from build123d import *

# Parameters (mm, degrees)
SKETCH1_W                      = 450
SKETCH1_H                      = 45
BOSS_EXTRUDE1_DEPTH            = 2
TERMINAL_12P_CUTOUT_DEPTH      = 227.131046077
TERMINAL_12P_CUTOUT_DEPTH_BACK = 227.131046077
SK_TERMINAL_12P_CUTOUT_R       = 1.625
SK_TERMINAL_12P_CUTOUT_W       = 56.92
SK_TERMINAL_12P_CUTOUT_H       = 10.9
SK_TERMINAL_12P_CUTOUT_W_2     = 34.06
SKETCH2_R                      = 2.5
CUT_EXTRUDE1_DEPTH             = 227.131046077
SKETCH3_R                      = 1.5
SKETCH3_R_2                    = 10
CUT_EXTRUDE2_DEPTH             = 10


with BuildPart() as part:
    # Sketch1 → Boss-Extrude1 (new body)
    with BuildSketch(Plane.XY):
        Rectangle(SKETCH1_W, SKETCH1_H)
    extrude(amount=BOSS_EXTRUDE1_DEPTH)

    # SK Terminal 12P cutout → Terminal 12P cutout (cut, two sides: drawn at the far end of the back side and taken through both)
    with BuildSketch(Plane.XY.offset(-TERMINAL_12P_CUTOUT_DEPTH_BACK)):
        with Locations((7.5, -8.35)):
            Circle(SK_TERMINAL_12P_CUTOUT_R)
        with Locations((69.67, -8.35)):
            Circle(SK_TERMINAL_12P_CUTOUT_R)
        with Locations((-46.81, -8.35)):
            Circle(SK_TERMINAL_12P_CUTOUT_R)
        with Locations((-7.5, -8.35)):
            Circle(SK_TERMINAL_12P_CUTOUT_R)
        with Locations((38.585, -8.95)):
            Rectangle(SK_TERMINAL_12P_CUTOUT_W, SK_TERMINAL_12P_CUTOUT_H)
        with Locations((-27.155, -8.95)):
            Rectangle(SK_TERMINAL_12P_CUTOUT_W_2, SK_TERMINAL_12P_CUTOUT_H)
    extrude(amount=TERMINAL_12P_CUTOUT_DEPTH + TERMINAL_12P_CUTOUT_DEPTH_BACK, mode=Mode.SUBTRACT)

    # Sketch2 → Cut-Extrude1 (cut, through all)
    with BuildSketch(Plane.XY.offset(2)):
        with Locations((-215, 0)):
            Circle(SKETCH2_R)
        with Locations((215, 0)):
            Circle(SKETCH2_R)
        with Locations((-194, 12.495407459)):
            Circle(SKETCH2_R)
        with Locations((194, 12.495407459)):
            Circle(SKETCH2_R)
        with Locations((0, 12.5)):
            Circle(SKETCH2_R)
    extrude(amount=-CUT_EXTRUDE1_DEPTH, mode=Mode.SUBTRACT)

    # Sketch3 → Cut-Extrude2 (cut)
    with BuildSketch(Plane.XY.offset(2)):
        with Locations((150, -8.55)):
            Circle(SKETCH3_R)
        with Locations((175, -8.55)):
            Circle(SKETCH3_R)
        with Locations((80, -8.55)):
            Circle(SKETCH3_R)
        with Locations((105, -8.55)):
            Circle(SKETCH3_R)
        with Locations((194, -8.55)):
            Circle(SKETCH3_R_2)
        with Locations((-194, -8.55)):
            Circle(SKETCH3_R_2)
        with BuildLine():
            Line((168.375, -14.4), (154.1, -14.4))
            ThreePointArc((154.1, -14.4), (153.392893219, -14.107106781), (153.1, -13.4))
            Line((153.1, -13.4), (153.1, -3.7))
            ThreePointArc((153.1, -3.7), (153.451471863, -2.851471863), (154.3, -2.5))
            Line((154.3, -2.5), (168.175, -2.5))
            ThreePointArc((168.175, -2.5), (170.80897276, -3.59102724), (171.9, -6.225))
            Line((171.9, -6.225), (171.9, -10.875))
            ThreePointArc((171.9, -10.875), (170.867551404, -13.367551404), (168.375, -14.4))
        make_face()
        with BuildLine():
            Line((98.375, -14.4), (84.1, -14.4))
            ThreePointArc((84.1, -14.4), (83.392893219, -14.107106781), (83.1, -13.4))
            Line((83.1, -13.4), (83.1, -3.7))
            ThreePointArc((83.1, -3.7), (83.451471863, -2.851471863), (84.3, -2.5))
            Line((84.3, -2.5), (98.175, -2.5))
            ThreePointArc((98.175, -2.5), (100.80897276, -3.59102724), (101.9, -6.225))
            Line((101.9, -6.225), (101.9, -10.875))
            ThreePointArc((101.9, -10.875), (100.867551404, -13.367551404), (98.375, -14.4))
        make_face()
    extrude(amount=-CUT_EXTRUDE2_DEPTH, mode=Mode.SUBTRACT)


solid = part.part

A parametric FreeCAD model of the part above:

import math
import FreeCAD as App
import Part
import Sketcher
Q = App.Units.Quantity


def add_polygon(sketch, points):
    """Adds a closed chain of lines whose ends are joined by coincident constraints."""
    first, n = sketch.GeometryCount, len(points)
    for a, b in zip(points, points[1:] + points[:1]):
        sketch.addGeometry(Part.LineSegment(App.Vector(*a, 0), App.Vector(*b, 0)), False)
    for i in range(n):
        sketch.addConstraint(Sketcher.Constraint("Coincident", first + i, 2, first + (i + 1) % n, 1))

doc = App.newDocument("Part")
body = doc.addObject("PartDesign::Body", "Body")

sketch1 = body.newObject("Sketcher::SketchObject", "Sketch")
sketch1.AttachmentSupport = (doc.getObject("XY_Plane"), [""])
sketch1.MapMode = "FlatFace"
add_polygon(sketch1, [(-225, 22), (-225, -22), (225, -22), (225, 22)])
sketch1.addConstraint(Sketcher.Constraint("Vertical", 0))
sketch1.addConstraint(Sketcher.Constraint("Horizontal", 1))
sketch1.addConstraint(Sketcher.Constraint("Vertical", 2))
sketch1.addConstraint(Sketcher.Constraint("Horizontal", 3))
sketch1.addConstraint(Sketcher.Constraint("Symmetric", 0, 2, 2, 2, -1, 1))
sketch1.addConstraint(Sketcher.Constraint("DistanceX", 1, 1, 1, 2, Q("450 mm")))
sketch1.addConstraint(Sketcher.Constraint("DistanceY", 0, 2, 0, 1, Q("45 mm")))
pad1 = body.newObject("PartDesign::Pad", "Pad")
pad1.Profile = sketch1
pad1.Length = 2

sketch2 = body.newObject("Sketcher::SketchObject", "Sketch001")
sketch2.AttachmentSupport = (doc.getObject("XY_Plane"), [""])
sketch2.MapMode = "FlatFace"
sketch2.addGeometry(Part.Circle(App.Vector(7.5, -8.3, 0), App.Vector(0, 0, 1), 1.6), False)
sketch2.addGeometry(Part.Circle(App.Vector(69.7, -8.3, 0), App.Vector(0, 0, 1), 1.6), False)
sketch2.addGeometry(Part.Circle(App.Vector(-46.8, -8.3, 0), App.Vector(0, 0, 1), 1.6), False)
sketch2.addGeometry(Part.Circle(App.Vector(-7.5, -8.3, 0), App.Vector(0, 0, 1), 1.6), False)
add_polygon(sketch2, [(10.1, -3.5), (10.1, -14.4), (67, -14.4), (67, -3.5)])
add_polygon(sketch2, [(-44.2, -3.5), (-44.2, -14.4), (-10.1, -14.4), (-10.1, -3.5)])
sketch2.addConstraint(Sketcher.Constraint("Vertical", 4))
sketch2.addConstraint(Sketcher.Constraint("Horizontal", 5))
sketch2.addConstraint(Sketcher.Constraint("Vertical", 6))
sketch2.addConstraint(Sketcher.Constraint("Horizontal", 7))
sketch2.addConstraint(Sketcher.Constraint("Vertical", 8))
sketch2.addConstraint(Sketcher.Constraint("Horizontal", 9))
sketch2.addConstraint(Sketcher.Constraint("Vertical", 10))
sketch2.addConstraint(Sketcher.Constraint("Horizontal", 11))
sketch2.addConstraint(Sketcher.Constraint("Equal", 0, 1))
sketch2.addConstraint(Sketcher.Constraint("Equal", 1, 2))
sketch2.addConstraint(Sketcher.Constraint("Equal", 2, 3))
sketch2.addConstraint(Sketcher.Constraint("Symmetric", 0, 3, 3, 3, -2))
sketch2.addConstraint(Sketcher.Constraint("Symmetric", 4, 2, 9, 2, -2))
sketch2.addConstraint(Sketcher.Constraint("Horizontal", 0, 3, 1, 3))
sketch2.addConstraint(Sketcher.Constraint("Horizontal", 1, 3, 2, 3))
sketch2.addConstraint(Sketcher.Constraint("Horizontal", 7, 2, 10, 2))
sketch2.addConstraint(Sketcher.Constraint("Diameter", 0, Q("3.25 mm")))
sketch2.addConstraint(Sketcher.Constraint("DistanceY", 4, 2, 4, 1, Q("10.9 mm")))
sketch2.addConstraint(Sketcher.Constraint("DistanceX", 3, 3, 0, 3, Q("15 mm")))
sketch2.addConstraint(Sketcher.Constraint("DistanceX", 5, 1, 5, 2, Q("56.92 mm")))
sketch2.addConstraint(Sketcher.Constraint("DistanceX", 9, 1, 9, 2, Q("34.06 mm")))
sketch2.addConstraint(Sketcher.Constraint("DistanceY", 4, 2, -1, 1, Q("14.4 mm")))
sketch2.addConstraint(Sketcher.Constraint("DistanceY", 0, 3, -1, 1, Q("8.35 mm")))
sketch2.addConstraint(Sketcher.Constraint("DistanceX", -1, 1, 1, 3, Q("69.67 mm")))
sketch2.addConstraint(Sketcher.Constraint("DistanceX", 2, 3, -1, 1, Q("46.81 mm")))
sketch2.addConstraint(Sketcher.Constraint("DistanceX", 8, 2, 4, 2, Q("54.31 mm")))
pocket1 = body.newObject("PartDesign::Pocket", "Pocket")
pocket1.Profile = sketch2
pocket1.Type = "ThroughAll"
pocket1.Midplane = True

sketch3 = body.newObject("Sketcher::SketchObject", "Sketch002")
sketch3.AttachmentSupport = (doc.getObject("XY_Plane"), [""])
sketch3.MapMode = "FlatFace"
sketch3.AttachmentOffset = App.Placement(App.Vector(0, 0, 2), App.Rotation())
sketch3.addGeometry(Part.Circle(App.Vector(-215, 0, 0), App.Vector(0, 0, 1), 2.5), False)
sketch3.addGeometry(Part.Circle(App.Vector(215, 0, 0), App.Vector(0, 0, 1), 2.5), False)
sketch3.addGeometry(Part.Circle(App.Vector(-194, 12.5, 0), App.Vector(0, 0, 1), 2.5), False)
sketch3.addGeometry(Part.Circle(App.Vector(194, 12.5, 0), App.Vector(0, 0, 1), 2.5), False)
sketch3.addGeometry(Part.Circle(App.Vector(0, 12.5, 0), App.Vector(0, 0, 1), 2.5), False)
sketch3.addConstraint(Sketcher.Constraint("Equal", 0, 1))
sketch3.addConstraint(Sketcher.Constraint("Equal", 1, 2))
sketch3.addConstraint(Sketcher.Constraint("Equal", 2, 3))
sketch3.addConstraint(Sketcher.Constraint("Equal", 3, 4))
sketch3.addConstraint(Sketcher.Constraint("Symmetric", 0, 3, 1, 3, -1, 1))
sketch3.addConstraint(Sketcher.Constraint("Symmetric", 2, 3, 3, 3, -2))
sketch3.addConstraint(Sketcher.Constraint("PointOnObject", 0, 3, -1))
sketch3.addConstraint(Sketcher.Constraint("PointOnObject", 4, 3, -2))
sketch3.addConstraint(Sketcher.Constraint("Diameter", 0, Q("5 mm")))
sketch3.addConstraint(Sketcher.Constraint("DistanceX", 0, 3, -1, 1, Q("215 mm")))
sketch3.addConstraint(Sketcher.Constraint("DistanceX", 2, 3, -1, 1, Q("194 mm")))
sketch3.addConstraint(Sketcher.Constraint("DistanceY", -1, 1, 4, 3, Q("12.5 mm")))
sketch3.addConstraint(Sketcher.Constraint("DistanceY", -1, 1, 2, 3, Q("12.495407 mm")))
pocket2 = body.newObject("PartDesign::Pocket", "Pocket001")
pocket2.Profile = sketch3
pocket2.Type = "ThroughAll"

sketch4 = body.newObject("Sketcher::SketchObject", "Sketch003")
sketch4.AttachmentSupport = (doc.getObject("XY_Plane"), [""])
sketch4.MapMode = "FlatFace"
sketch4.AttachmentOffset = App.Placement(App.Vector(0, 0, 2), App.Rotation())
sketch4.addGeometry(Part.Circle(App.Vector(150, -8.6, 0), App.Vector(0, 0, 1), 1.5), False)
sketch4.addGeometry(Part.Circle(App.Vector(175, -8.6, 0), App.Vector(0, 0, 1), 1.5), False)
sketch4.addGeometry(Part.Circle(App.Vector(80, -8.6, 0), App.Vector(0, 0, 1), 1.5), False)
sketch4.addGeometry(Part.Circle(App.Vector(105, -8.6, 0), App.Vector(0, 0, 1), 1.5), False)
sketch4.addGeometry(Part.Circle(App.Vector(194, -8.6, 0), App.Vector(0, 0, 1), 10), False)
sketch4.addGeometry(Part.Circle(App.Vector(-194, -8.6, 0), App.Vector(0, 0, 1), 10), False)
sketch4.addGeometry(Part.LineSegment(App.Vector(154.1, -14.4, 0), App.Vector(168.4, -14.4, 0)), False)
sketch4.addGeometry(Part.ArcOfCircle(Part.Circle(App.Vector(168.4, -10.9, 0), App.Vector(0, 0, 1), 3.5), math.radians(-90), math.radians(0)), False)
sketch4.addGeometry(Part.LineSegment(App.Vector(171.9, -10.9, 0), App.Vector(171.9, -6.2, 0)), False)
sketch4.addGeometry(Part.ArcOfCircle(Part.Circle(App.Vector(168.2, -6.2, 0), App.Vector(0, 0, 1), 3.7), math.radians(0), math.radians(90)), False)
sketch4.addGeometry(Part.LineSegment(App.Vector(168.2, -2.5, 0), App.Vector(154.3, -2.5, 0)), False)
sketch4.addGeometry(Part.ArcOfCircle(Part.Circle(App.Vector(154.3, -3.7, 0), App.Vector(0, 0, 1), 1.2), math.radians(90), math.radians(180)), False)
sketch4.addGeometry(Part.LineSegment(App.Vector(153.1, -3.7, 0), App.Vector(153.1, -13.4, 0)), False)
sketch4.addGeometry(Part.ArcOfCircle(Part.Circle(App.Vector(154.1, -13.4, 0), App.Vector(0, 0, 1), 1), math.radians(-180), math.radians(-90)), False)
sketch4.addGeometry(Part.LineSegment(App.Vector(84.1, -14.4, 0), App.Vector(98.4, -14.4, 0)), False)
sketch4.addGeometry(Part.ArcOfCircle(Part.Circle(App.Vector(98.4, -10.9, 0), App.Vector(0, 0, 1), 3.5), math.radians(-90), math.radians(0)), False)
sketch4.addGeometry(Part.LineSegment(App.Vector(101.9, -10.9, 0), App.Vector(101.9, -6.2, 0)), False)
sketch4.addGeometry(Part.ArcOfCircle(Part.Circle(App.Vector(98.2, -6.2, 0), App.Vector(0, 0, 1), 3.7), math.radians(0), math.radians(90)), False)
sketch4.addGeometry(Part.LineSegment(App.Vector(98.2, -2.5, 0), App.Vector(84.3, -2.5, 0)), False)
sketch4.addGeometry(Part.ArcOfCircle(Part.Circle(App.Vector(84.3, -3.7, 0), App.Vector(0, 0, 1), 1.2), math.radians(90), math.radians(180)), False)
sketch4.addGeometry(Part.LineSegment(App.Vector(83.1, -3.7, 0), App.Vector(83.1, -13.4, 0)), False)
sketch4.addGeometry(Part.ArcOfCircle(Part.Circle(App.Vector(84.1, -13.4, 0), App.Vector(0, 0, 1), 1), math.radians(-180), math.radians(-90)), False)
sketch4.addConstraint(Sketcher.Constraint("Tangent", 6, 2, 7, 1))
sketch4.addConstraint(Sketcher.Constraint("Tangent", 7, 2, 8, 1))
sketch4.addConstraint(Sketcher.Constraint("Tangent", 8, 2, 9, 1))
sketch4.addConstraint(Sketcher.Constraint("Tangent", 9, 2, 10, 1))
sketch4.addConstraint(Sketcher.Constraint("Tangent", 10, 2, 11, 1))
sketch4.addConstraint(Sketcher.Constraint("Tangent", 11, 2, 12, 1))
sketch4.addConstraint(Sketcher.Constraint("Tangent", 12, 2, 13, 1))
sketch4.addConstraint(Sketcher.Constraint("Tangent", 13, 2, 6, 1))
sketch4.addConstraint(Sketcher.Constraint("Tangent", 14, 2, 15, 1))
sketch4.addConstraint(Sketcher.Constraint("Tangent", 15, 2, 16, 1))
sketch4.addConstraint(Sketcher.Constraint("Tangent", 16, 2, 17, 1))
sketch4.addConstraint(Sketcher.Constraint("Tangent", 17, 2, 18, 1))
sketch4.addConstraint(Sketcher.Constraint("Tangent", 18, 2, 19, 1))
sketch4.addConstraint(Sketcher.Constraint("Tangent", 19, 2, 20, 1))
sketch4.addConstraint(Sketcher.Constraint("Tangent", 20, 2, 21, 1))
sketch4.addConstraint(Sketcher.Constraint("Tangent", 21, 2, 14, 1))
sketch4.addConstraint(Sketcher.Constraint("Horizontal", 6))
sketch4.addConstraint(Sketcher.Constraint("Vertical", 8))
sketch4.addConstraint(Sketcher.Constraint("Horizontal", 10))
sketch4.addConstraint(Sketcher.Constraint("Vertical", 12))
sketch4.addConstraint(Sketcher.Constraint("Horizontal", 14))
sketch4.addConstraint(Sketcher.Constraint("Vertical", 16))
sketch4.addConstraint(Sketcher.Constraint("Horizontal", 18))
sketch4.addConstraint(Sketcher.Constraint("Vertical", 20))
sketch4.addConstraint(Sketcher.Constraint("Equal", 0, 1))
sketch4.addConstraint(Sketcher.Constraint("Equal", 1, 2))
sketch4.addConstraint(Sketcher.Constraint("Equal", 2, 3))
sketch4.addConstraint(Sketcher.Constraint("Equal", 4, 5))
sketch4.addConstraint(Sketcher.Constraint("Equal", 7, 15))
sketch4.addConstraint(Sketcher.Constraint("Equal", 9, 17))
sketch4.addConstraint(Sketcher.Constraint("Equal", 11, 19))
sketch4.addConstraint(Sketcher.Constraint("Equal", 13, 21))
sketch4.addConstraint(Sketcher.Constraint("Symmetric", 4, 3, 5, 3, -2))
sketch4.addConstraint(Sketcher.Constraint("Horizontal", 0, 3, 1, 3))
sketch4.addConstraint(Sketcher.Constraint("Horizontal", 1, 3, 2, 3))
sketch4.addConstraint(Sketcher.Constraint("Horizontal", 2, 3, 3, 3))
sketch4.addConstraint(Sketcher.Constraint("Horizontal", 3, 3, 4, 3))
sketch4.addConstraint(Sketcher.Constraint("Horizontal", 7, 3, 15, 3))
sketch4.addConstraint(Sketcher.Constraint("Horizontal", 9, 3, 17, 3))
sketch4.addConstraint(Sketcher.Constraint("Equal", 6, 14))
sketch4.addConstraint(Sketcher.Constraint("Diameter", 0, Q("3 mm")))
sketch4.addConstraint(Sketcher.Constraint("Diameter", 4, Q("20 mm")))
sketch4.addConstraint(Sketcher.Constraint("Radius", 13, Q("1 mm")))
sketch4.addConstraint(Sketcher.Constraint("Radius", 11, Q("1.2 mm")))
sketch4.addConstraint(Sketcher.Constraint("DistanceY", 12, 2, 12, 1, Q("9.7 mm")))
sketch4.addConstraint(Sketcher.Constraint("DistanceX", -1, 1, 0, 3, Q("150 mm")))
sketch4.addConstraint(Sketcher.Constraint("DistanceX", -1, 1, 1, 3, Q("175 mm")))
sketch4.addConstraint(Sketcher.Constraint("DistanceX", -1, 1, 2, 3, Q("80 mm")))
sketch4.addConstraint(Sketcher.Constraint("DistanceX", -1, 1, 3, 3, Q("105 mm")))
sketch4.addConstraint(Sketcher.Constraint("DistanceX", -1, 1, 4, 3, Q("194 mm")))
sketch4.addConstraint(Sketcher.Constraint("Radius", 7, Q("3.525 mm")))
sketch4.addConstraint(Sketcher.Constraint("Radius", 9, Q("3.725 mm")))
sketch4.addConstraint(Sketcher.Constraint("DistanceX", -1, 1, 11, 3, Q("154.3 mm")))
sketch4.addConstraint(Sketcher.Constraint("DistanceY", 11, 3, -1, 1, Q("3.7 mm")))
sketch4.addConstraint(Sketcher.Constraint("DistanceX", -1, 1, 19, 3, Q("84.3 mm")))
sketch4.addConstraint(Sketcher.Constraint("DistanceX", -1, 1, 7, 2, Q("171.9 mm")))
sketch4.addConstraint(Sketcher.Constraint("DistanceY", 0, 3, -1, 1, Q("8.55 mm")))
pocket3 = body.newObject("PartDesign::Pocket", "Pocket002")
pocket3.Profile = sketch4
pocket3.Length = 10

doc.recompute()
